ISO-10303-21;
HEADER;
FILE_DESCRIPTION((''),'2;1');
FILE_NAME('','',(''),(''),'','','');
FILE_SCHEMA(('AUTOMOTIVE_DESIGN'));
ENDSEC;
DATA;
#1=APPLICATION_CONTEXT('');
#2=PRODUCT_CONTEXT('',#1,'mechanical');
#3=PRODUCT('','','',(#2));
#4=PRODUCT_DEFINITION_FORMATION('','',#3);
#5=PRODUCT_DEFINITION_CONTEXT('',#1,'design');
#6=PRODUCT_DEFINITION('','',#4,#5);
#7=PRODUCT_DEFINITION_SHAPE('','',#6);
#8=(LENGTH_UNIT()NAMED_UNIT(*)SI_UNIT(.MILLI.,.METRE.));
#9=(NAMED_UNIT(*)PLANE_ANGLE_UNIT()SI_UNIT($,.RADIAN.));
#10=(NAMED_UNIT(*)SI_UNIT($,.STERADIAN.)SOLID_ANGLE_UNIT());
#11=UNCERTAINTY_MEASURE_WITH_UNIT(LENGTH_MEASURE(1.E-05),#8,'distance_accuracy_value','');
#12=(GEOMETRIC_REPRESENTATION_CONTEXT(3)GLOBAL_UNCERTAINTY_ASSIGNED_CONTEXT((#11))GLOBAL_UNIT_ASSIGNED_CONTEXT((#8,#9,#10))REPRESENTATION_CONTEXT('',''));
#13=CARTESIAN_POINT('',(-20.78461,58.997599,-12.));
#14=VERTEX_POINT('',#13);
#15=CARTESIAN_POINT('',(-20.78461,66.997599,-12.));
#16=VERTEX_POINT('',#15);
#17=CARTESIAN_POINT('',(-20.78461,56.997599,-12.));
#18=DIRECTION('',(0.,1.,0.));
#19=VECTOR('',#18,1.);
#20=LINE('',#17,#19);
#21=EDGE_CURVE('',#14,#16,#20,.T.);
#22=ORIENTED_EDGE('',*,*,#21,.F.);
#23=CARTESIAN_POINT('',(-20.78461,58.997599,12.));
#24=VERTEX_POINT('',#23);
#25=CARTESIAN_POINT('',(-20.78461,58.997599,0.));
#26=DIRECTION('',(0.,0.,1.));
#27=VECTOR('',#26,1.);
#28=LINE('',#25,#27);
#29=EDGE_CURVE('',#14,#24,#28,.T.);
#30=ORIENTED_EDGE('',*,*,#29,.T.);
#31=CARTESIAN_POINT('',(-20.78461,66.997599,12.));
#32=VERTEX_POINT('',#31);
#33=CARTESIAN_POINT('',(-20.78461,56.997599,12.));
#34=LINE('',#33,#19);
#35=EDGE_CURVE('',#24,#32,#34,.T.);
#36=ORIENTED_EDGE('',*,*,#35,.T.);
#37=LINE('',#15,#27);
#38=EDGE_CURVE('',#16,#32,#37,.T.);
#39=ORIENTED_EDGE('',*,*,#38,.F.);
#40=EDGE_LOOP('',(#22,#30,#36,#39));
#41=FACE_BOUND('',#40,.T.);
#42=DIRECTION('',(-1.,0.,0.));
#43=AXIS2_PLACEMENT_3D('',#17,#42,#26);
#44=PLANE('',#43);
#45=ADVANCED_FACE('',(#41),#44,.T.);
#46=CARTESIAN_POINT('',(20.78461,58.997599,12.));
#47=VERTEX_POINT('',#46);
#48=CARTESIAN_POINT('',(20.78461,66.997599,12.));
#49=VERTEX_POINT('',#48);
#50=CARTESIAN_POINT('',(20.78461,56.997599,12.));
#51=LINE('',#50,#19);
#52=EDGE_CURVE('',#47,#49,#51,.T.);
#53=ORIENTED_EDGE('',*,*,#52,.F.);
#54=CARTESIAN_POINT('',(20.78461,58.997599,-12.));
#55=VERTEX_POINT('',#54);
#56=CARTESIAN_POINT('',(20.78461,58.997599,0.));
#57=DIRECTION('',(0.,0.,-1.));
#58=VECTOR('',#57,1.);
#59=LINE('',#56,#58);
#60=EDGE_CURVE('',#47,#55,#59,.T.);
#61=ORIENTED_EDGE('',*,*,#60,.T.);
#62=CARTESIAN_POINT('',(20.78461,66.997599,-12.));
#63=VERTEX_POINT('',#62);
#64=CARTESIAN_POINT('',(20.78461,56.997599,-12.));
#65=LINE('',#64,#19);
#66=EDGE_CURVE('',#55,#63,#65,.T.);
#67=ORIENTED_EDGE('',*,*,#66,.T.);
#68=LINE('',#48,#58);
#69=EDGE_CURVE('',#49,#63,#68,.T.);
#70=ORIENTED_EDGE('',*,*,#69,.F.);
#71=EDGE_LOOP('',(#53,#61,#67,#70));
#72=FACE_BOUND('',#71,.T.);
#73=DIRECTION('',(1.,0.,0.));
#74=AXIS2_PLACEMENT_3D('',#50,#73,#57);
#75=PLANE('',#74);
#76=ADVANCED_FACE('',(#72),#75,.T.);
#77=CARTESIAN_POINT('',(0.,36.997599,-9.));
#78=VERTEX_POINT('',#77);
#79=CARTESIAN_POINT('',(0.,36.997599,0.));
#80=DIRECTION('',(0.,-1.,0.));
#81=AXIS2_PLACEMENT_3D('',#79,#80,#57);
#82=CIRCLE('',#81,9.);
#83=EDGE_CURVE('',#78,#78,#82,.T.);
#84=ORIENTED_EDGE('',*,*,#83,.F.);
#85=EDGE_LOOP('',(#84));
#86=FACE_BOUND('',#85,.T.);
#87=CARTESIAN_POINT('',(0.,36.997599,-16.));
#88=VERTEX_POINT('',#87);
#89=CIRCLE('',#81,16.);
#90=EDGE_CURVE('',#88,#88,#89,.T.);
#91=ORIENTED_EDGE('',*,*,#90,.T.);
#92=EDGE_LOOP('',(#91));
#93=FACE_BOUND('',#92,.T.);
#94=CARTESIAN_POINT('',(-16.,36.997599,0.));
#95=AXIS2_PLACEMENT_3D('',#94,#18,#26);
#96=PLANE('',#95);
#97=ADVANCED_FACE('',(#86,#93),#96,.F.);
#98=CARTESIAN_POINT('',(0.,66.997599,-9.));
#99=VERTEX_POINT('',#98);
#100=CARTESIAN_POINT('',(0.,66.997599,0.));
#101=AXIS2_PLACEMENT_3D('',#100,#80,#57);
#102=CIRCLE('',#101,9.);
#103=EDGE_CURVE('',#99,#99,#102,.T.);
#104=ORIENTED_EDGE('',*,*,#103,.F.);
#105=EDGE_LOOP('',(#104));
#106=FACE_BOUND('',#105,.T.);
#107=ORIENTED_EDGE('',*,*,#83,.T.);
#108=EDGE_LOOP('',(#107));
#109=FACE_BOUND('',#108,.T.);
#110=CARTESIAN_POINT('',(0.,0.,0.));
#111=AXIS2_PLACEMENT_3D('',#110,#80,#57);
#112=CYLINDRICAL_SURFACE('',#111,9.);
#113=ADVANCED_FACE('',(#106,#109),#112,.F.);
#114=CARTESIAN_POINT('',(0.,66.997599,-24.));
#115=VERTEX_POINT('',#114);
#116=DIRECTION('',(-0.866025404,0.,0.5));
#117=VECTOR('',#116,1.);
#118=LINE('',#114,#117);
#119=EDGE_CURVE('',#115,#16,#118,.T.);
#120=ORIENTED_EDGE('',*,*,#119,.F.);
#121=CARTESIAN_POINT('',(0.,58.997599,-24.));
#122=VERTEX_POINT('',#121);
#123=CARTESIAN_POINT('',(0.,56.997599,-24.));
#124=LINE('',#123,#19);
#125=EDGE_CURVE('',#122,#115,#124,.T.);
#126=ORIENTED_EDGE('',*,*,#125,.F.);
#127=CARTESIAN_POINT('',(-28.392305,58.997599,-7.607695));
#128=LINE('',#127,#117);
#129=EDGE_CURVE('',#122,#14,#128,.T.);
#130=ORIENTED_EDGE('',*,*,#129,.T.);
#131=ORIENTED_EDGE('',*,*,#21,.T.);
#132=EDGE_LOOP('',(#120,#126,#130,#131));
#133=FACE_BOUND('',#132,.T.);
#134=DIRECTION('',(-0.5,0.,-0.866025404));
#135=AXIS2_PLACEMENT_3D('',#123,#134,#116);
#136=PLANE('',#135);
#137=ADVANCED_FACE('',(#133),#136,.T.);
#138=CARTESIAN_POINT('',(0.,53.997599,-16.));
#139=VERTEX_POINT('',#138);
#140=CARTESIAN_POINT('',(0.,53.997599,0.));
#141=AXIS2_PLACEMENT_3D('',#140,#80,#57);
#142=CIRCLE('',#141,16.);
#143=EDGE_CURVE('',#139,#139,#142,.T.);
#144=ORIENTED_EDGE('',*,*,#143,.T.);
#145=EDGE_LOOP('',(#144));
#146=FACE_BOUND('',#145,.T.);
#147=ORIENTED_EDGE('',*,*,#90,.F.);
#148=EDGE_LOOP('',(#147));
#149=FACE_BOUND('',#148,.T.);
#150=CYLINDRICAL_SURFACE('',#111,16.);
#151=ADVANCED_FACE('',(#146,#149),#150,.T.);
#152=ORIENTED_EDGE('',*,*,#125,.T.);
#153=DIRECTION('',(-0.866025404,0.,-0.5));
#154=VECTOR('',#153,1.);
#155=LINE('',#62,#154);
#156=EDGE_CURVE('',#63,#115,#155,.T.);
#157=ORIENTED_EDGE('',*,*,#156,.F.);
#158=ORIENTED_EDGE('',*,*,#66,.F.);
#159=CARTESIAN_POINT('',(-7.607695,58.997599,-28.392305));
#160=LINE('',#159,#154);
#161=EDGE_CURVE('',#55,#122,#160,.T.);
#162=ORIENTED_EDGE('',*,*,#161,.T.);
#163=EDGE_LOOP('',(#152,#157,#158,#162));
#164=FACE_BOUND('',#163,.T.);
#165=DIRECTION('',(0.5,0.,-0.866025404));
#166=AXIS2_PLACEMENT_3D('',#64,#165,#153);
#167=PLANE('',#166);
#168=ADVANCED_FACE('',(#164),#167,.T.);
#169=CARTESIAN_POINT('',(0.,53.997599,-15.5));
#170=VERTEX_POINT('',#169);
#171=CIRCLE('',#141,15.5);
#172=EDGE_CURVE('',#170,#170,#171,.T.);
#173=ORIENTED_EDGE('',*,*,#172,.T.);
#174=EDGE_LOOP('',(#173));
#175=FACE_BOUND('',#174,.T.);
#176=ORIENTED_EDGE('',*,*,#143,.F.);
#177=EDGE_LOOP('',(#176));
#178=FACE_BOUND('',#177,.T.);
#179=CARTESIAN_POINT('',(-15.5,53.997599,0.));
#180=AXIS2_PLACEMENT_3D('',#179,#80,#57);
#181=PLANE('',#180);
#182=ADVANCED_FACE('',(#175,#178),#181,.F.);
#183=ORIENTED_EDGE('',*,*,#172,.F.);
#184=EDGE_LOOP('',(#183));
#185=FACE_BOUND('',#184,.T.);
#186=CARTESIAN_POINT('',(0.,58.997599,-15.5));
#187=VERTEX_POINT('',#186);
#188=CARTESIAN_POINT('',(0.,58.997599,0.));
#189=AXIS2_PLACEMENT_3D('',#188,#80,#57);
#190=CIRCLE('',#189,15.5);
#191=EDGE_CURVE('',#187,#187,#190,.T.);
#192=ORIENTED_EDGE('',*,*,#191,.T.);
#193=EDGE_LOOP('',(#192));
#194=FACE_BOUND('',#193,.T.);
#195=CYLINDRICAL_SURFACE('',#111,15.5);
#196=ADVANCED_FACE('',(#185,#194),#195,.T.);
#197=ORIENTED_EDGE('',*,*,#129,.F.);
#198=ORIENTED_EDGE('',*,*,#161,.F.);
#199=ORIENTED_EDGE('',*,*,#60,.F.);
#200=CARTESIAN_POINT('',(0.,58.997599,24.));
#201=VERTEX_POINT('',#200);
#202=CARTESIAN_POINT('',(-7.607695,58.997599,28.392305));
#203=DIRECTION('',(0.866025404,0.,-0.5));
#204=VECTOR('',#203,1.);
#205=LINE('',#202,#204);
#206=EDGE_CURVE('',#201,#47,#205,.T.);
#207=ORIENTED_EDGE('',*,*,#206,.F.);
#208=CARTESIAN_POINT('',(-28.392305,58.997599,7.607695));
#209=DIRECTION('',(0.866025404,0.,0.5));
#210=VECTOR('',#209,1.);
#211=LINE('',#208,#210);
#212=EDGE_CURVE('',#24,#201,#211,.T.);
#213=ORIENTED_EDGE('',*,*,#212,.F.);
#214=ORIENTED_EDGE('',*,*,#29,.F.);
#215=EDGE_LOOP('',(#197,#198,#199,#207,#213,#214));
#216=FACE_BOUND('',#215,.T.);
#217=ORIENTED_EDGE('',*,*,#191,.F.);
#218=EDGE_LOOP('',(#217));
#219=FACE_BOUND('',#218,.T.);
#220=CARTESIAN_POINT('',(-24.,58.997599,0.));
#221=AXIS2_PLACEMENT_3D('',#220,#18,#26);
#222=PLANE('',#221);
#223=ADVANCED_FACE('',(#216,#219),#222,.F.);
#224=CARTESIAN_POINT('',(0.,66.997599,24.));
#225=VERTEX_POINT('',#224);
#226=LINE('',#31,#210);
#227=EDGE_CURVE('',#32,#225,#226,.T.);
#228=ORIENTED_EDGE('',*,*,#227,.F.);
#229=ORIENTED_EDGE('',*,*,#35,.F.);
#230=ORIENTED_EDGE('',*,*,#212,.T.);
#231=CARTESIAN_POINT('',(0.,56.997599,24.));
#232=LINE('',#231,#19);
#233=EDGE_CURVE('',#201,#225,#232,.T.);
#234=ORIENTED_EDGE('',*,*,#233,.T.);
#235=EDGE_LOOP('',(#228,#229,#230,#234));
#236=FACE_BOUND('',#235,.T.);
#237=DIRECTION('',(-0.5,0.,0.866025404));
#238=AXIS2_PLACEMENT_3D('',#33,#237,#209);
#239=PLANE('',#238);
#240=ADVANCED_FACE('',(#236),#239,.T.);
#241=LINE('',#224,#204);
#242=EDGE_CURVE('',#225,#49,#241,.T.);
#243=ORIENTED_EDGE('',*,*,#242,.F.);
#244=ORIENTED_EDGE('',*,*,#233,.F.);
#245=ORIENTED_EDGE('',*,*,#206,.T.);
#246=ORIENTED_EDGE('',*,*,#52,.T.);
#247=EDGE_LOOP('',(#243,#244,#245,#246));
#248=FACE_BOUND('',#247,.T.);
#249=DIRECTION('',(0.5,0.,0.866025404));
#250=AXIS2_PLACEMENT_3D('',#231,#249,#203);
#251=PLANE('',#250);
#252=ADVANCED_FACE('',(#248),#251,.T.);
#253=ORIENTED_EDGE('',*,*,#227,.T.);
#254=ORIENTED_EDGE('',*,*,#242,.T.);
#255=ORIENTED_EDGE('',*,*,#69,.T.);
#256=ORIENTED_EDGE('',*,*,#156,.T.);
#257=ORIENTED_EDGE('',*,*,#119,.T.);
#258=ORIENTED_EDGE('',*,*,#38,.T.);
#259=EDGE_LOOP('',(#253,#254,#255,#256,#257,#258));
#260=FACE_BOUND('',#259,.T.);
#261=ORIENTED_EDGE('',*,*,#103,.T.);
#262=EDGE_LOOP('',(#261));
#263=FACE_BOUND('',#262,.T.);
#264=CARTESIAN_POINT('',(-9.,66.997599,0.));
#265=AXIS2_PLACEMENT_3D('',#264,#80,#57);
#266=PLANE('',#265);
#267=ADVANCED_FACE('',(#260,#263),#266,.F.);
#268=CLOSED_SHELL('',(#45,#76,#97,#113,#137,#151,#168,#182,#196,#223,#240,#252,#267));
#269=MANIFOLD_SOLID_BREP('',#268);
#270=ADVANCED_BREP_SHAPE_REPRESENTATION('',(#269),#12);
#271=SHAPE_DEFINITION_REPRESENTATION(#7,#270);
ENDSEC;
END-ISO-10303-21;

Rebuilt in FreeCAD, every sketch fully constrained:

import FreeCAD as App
import Part
import Sketcher
Q = App.Units.Quantity


def add_polygon(sketch, points):
    """Adds a closed chain of lines whose ends are joined by coincident constraints."""
    first, n = sketch.GeometryCount, len(points)
    for a, b in zip(points, points[1:] + points[:1]):
        sketch.addGeometry(Part.LineSegment(App.Vector(*a, 0), App.Vector(*b, 0)), False)
    for i in range(n):
        sketch.addConstraint(Sketcher.Constraint("Coincident", first + i, 2, first + (i + 1) % n, 1))

doc = App.newDocument("Part")
params = doc.addObject("Spreadsheet::Sheet", "Params")
for row, (alias, value) in enumerate([
    ("sketch1_width", "15 mm"),
    ("sketch1_width2", "7 mm"),
    ("sketch1_height", "8 mm"),
    ("sketch1_height2", "5 mm"),
    ("sketch1_height3", "17 mm"),
    ("revolution_angle", "360 deg"),
    ("sketch2_height", "24 mm"),
    ("sketch2_length", "24 mm"),
    ("pocket1_length", "10 mm"),
], start=1):
    params.set(f"A{row}", alias)
    params.set(f"B{row}", "=" + value)
    params.setAlias(f"B{row}", alias)

body = doc.addObject("PartDesign::Body", "Body")

# Sketch on XY plane
sketch1 = body.newObject("Sketcher::SketchObject", "Sketch")
sketch1.AttachmentSupport = (doc.getObject("XY_Plane"), [""])
sketch1.MapMode = "FlatFace"
add_polygon(sketch1, [(-9, 67), (-24, 67), (-24, 59), (-15.5, 59), (-15.5, 54), (-16, 54), (-16, 37), (-9, 37)])  # lines 0-7
sketch1.addConstraint(Sketcher.Constraint("Horizontal", 0))
sketch1.addConstraint(Sketcher.Constraint("Vertical", 1))
sketch1.addConstraint(Sketcher.Constraint("Horizontal", 2))
sketch1.addConstraint(Sketcher.Constraint("Vertical", 3))
sketch1.addConstraint(Sketcher.Constraint("Horizontal", 4))
sketch1.addConstraint(Sketcher.Constraint("Vertical", 5))
sketch1.addConstraint(Sketcher.Constraint("Horizontal", 6))
sketch1.addConstraint(Sketcher.Constraint("Vertical", 7))
sketch1.addConstraint(Sketcher.Constraint("DistanceX", 0, 2, 0, 1, Q("15 mm")))
sketch1.addConstraint(Sketcher.Constraint("DistanceX", 6, 1, 6, 2, Q("7 mm")))
sketch1.addConstraint(Sketcher.Constraint("DistanceY", 1, 2, 1, 1, Q("8 mm")))
sketch1.addConstraint(Sketcher.Constraint("DistanceY", 3, 2, 3, 1, Q("5 mm")))
sketch1.addConstraint(Sketcher.Constraint("DistanceY", 5, 2, 5, 1, Q("17 mm")))
sketch1.addConstraint(Sketcher.Constraint("DistanceX", 2, 1, 2, 2, Q("8.5 mm")))
sketch1.addConstraint(Sketcher.Constraint("DistanceX", 0, 2, -1, 1, Q("24 mm")))
sketch1.addConstraint(Sketcher.Constraint("DistanceY", -1, 1, 0, 2, Q("66.997599 mm")))
sketch1.setExpression("Constraints[16]", "Params.sketch1_width")
sketch1.setExpression("Constraints[17]", "Params.sketch1_width2")
sketch1.setExpression("Constraints[18]", "Params.sketch1_height")
sketch1.setExpression("Constraints[19]", "Params.sketch1_height2")
sketch1.setExpression("Constraints[20]", "Params.sketch1_height3")
revolution = body.newObject("PartDesign::Revolution", "Revolution")
revolution.Profile = sketch1
revolution.ReferenceAxis = (sketch1, ["V_Axis"])
revolution.setExpression("Angle", "Params.revolution_angle")

# Sketch on XZ plane
sketch2 = body.newObject("Sketcher::SketchObject", "Sketch001")
sketch2.AttachmentSupport = (doc.getObject("XZ_Plane"), [""])
sketch2.MapMode = "FlatFace"
sketch2.AttachmentOffset = App.Placement(App.Vector(0, 0, -66.997599), App.Rotation())
sketch2.addGeometry(Part.Circle(App.Vector(0, 0, 0), App.Vector(0, 0, 1), 29), False)  # 0
add_polygon(sketch2, [(-21, -12), (0, -24), (21, -12), (21, 12), (0, 24), (-21, 12)])  # lines 1-6
sketch2.addConstraint(Sketcher.Constraint("Vertical", 3))
sketch2.addConstraint(Sketcher.Constraint("Vertical", 6))
sketch2.addConstraint(Sketcher.Constraint("Coincident", 0, 3, -1, 1))
sketch2.addConstraint(Sketcher.Constraint("Symmetric", 1, 2, 4, 2, -1, 1))
sketch2.addConstraint(Sketcher.Constraint("Symmetric", 2, 2, 5, 2, -1, 1))
sketch2.addConstraint(Sketcher.Constraint("PointOnObject", 1, 2, -2))
sketch2.addConstraint(Sketcher.Constraint("Parallel", 1, 4))
sketch2.addConstraint(Sketcher.Constraint("Horizontal", 3, 2, 5, 2))
sketch2.addConstraint(Sketcher.Constraint("DistanceY", 3, 1, 3, 2, Q("24 mm")))
sketch2.addConstraint(Sketcher.Constraint("Angle", 1, Q("-30 deg")))
sketch2.addConstraint(Sketcher.Constraint("Distance", 1, Q("24 mm")))
sketch2.addConstraint(Sketcher.Constraint("Diameter", 0, Q("57.711311 mm")))
sketch2.setExpression("Constraints[14]", "Params.sketch2_height")
sketch2.setExpression("Constraints[16]", "Params.sketch2_length")
pocket1 = body.newObject("PartDesign::Pocket", "Pocket")
pocket1.Profile = sketch2
pocket1.setExpression("Length", "Params.pocket1_length")
pocket1.Reversed = True

doc.recompute()
